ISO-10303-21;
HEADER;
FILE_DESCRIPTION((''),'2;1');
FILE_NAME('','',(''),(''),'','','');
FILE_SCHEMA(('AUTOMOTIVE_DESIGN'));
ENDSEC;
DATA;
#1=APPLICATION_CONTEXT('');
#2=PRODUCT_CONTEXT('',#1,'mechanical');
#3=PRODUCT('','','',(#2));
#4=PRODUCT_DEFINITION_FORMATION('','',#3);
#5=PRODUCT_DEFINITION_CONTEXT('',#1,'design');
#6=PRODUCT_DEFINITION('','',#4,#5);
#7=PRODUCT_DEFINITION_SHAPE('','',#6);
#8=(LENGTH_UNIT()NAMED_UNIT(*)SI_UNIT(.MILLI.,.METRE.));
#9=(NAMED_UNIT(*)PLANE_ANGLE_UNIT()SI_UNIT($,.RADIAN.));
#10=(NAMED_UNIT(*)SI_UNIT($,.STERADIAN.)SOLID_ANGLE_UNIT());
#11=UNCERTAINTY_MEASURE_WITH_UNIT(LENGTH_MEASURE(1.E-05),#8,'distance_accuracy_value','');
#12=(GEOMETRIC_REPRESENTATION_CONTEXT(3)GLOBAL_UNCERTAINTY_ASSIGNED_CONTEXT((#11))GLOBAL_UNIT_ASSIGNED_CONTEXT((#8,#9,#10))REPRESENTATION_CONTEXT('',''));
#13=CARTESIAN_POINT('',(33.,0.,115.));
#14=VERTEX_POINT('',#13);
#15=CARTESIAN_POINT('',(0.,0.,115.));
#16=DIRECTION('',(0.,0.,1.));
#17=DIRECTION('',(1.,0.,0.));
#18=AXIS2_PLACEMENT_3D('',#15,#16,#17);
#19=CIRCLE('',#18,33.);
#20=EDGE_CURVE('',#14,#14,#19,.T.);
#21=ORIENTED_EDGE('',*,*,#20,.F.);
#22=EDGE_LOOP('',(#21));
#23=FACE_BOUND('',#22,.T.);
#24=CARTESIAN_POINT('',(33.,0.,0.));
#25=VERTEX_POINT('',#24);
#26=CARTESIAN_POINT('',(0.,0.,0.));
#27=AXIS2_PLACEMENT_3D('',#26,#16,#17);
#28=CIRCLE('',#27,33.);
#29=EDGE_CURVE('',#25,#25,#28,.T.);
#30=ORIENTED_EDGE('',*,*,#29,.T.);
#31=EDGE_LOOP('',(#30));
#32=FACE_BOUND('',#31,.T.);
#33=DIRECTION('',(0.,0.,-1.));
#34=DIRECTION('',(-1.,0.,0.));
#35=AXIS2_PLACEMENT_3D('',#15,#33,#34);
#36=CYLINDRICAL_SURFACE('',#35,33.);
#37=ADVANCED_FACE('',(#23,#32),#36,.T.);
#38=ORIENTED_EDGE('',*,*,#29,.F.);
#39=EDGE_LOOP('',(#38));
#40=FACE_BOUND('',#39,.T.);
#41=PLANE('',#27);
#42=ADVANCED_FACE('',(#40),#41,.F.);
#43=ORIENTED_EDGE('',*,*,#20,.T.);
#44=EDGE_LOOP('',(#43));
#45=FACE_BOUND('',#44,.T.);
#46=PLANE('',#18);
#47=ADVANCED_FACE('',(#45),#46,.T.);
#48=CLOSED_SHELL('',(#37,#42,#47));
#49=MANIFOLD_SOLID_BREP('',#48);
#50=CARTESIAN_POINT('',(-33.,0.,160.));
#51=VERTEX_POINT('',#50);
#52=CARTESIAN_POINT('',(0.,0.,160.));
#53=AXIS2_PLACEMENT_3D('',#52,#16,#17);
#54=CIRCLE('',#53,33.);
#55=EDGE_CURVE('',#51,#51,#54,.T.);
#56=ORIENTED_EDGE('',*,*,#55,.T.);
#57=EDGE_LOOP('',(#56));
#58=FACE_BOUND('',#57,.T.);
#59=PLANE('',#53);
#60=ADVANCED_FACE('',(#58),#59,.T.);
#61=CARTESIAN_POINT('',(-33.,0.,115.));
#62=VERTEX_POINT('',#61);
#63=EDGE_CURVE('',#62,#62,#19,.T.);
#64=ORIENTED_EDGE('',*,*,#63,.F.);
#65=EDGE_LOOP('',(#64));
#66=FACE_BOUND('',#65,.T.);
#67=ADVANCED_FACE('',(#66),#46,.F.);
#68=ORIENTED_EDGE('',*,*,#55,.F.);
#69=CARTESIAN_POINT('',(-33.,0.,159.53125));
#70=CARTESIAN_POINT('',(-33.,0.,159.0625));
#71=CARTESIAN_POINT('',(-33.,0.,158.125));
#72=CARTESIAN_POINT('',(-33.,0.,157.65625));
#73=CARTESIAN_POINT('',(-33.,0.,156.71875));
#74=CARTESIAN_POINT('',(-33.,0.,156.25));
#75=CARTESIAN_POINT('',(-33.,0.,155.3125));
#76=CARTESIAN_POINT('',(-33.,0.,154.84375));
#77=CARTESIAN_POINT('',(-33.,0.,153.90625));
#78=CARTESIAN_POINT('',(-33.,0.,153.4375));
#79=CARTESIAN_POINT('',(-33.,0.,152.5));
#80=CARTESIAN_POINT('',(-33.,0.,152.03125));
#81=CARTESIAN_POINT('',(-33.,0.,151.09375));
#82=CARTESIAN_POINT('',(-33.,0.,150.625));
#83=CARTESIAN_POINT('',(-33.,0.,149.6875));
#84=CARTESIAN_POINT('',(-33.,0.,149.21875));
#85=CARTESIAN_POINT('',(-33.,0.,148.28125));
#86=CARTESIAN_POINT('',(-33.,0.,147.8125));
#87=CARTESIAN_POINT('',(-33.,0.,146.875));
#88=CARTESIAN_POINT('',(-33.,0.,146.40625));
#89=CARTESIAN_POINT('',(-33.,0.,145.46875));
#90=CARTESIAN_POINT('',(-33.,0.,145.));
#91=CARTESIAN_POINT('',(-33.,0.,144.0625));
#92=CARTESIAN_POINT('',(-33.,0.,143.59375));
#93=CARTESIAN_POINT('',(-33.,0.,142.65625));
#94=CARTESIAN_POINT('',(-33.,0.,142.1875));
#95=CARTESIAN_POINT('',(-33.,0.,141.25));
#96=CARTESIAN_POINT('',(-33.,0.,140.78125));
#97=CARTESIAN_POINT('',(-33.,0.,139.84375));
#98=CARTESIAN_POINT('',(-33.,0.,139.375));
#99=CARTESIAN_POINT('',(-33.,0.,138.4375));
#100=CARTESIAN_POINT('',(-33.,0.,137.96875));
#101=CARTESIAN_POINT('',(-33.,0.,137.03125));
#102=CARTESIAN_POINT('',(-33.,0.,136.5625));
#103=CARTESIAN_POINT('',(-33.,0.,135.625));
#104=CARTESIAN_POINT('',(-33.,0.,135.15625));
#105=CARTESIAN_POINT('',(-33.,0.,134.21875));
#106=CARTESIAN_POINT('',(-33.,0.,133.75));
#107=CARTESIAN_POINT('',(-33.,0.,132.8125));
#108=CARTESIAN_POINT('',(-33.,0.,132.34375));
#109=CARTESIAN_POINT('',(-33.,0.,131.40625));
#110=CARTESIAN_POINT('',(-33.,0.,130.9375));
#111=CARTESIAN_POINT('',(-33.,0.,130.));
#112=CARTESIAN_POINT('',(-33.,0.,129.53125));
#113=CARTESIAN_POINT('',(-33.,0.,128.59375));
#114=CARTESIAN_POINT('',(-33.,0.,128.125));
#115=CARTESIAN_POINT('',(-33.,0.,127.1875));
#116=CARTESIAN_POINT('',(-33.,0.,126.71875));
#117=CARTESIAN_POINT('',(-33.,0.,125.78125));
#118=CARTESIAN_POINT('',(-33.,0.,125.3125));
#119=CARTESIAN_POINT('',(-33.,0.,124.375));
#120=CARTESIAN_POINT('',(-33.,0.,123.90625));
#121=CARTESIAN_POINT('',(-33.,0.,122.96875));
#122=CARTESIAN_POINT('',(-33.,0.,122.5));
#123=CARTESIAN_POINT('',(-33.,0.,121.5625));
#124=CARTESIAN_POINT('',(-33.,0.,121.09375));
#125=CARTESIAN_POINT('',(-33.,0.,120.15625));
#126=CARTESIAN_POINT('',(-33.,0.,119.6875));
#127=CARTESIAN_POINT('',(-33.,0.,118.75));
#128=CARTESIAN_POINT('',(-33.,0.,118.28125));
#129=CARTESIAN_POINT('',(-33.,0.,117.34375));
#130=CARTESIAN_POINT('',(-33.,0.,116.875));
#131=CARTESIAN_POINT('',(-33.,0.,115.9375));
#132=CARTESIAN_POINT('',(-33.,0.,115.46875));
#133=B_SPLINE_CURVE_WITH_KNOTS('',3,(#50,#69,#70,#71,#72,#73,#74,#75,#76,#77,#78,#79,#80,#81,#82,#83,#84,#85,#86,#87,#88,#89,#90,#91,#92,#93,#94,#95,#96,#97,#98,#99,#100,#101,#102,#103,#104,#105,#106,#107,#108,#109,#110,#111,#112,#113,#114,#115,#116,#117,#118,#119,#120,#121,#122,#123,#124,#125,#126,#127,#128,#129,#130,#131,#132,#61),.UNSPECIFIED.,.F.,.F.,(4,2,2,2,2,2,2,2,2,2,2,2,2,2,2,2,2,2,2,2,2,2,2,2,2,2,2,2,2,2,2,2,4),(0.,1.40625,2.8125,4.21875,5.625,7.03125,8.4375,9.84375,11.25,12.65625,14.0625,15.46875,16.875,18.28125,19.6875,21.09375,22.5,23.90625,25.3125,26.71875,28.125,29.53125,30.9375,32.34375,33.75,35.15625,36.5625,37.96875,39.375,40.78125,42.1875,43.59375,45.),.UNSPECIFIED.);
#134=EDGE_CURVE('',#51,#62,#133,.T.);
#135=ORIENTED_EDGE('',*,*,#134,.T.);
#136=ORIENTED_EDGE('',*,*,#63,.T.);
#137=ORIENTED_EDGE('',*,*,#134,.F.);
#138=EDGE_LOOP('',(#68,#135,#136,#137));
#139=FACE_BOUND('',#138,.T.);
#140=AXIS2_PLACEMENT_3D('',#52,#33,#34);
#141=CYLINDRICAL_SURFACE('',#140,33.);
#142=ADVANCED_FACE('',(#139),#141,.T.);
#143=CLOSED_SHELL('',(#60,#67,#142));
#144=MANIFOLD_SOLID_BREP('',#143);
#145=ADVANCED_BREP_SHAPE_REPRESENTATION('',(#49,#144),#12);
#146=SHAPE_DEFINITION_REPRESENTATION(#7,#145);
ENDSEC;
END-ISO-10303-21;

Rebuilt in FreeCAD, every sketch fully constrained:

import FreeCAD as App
import Part
import Sketcher
Q = App.Units.Quantity

doc = App.newDocument("Part")
body = doc.addObject("PartDesign::Body", "Body")

sketch1 = body.newObject("Sketcher::SketchObject", "Sketch")
sketch1.AttachmentSupport = (doc.getObject("XY_Plane"), [""])
sketch1.MapMode = "FlatFace"
sketch1.addGeometry(Part.Circle(App.Vector(0, 0, 0), App.Vector(0, 0, 1), 33), False)
sketch1.addConstraint([
    Sketcher.Constraint("Coincident", 0, 3, -1, 1),
    Sketcher.Constraint("Diameter", 0, Q("66 mm")),
])
pad1 = body.newObject("PartDesign::Pad", "Pad")
pad1.Profile = sketch1
pad1.Length = 115
body2 = doc.addObject("PartDesign::Body", "Body001")

sketch2 = body2.newObject("Sketcher::SketchObject", "Sketch001")
sketch2.AttachmentSupport = (doc.getObject("XY_Plane001"), [""])
sketch2.MapMode = "FlatFace"
sketch2.AttachmentOffset = App.Placement(App.Vector(0, 0, 115), App.Rotation())
sketch2.addGeometry(Part.Circle(App.Vector(0, 0, 0), App.Vector(0, 0, 1), 33), False)
sketch2.addConstraint([
    Sketcher.Constraint("Coincident", 0, 3, -1, 1),
    Sketcher.Constraint("Diameter", 0, Q("66 mm")),
])
pad2 = body2.newObject("PartDesign::Pad", "Pad001")
pad2.Profile = sketch2
pad2.Length = 45

doc.recompute()
